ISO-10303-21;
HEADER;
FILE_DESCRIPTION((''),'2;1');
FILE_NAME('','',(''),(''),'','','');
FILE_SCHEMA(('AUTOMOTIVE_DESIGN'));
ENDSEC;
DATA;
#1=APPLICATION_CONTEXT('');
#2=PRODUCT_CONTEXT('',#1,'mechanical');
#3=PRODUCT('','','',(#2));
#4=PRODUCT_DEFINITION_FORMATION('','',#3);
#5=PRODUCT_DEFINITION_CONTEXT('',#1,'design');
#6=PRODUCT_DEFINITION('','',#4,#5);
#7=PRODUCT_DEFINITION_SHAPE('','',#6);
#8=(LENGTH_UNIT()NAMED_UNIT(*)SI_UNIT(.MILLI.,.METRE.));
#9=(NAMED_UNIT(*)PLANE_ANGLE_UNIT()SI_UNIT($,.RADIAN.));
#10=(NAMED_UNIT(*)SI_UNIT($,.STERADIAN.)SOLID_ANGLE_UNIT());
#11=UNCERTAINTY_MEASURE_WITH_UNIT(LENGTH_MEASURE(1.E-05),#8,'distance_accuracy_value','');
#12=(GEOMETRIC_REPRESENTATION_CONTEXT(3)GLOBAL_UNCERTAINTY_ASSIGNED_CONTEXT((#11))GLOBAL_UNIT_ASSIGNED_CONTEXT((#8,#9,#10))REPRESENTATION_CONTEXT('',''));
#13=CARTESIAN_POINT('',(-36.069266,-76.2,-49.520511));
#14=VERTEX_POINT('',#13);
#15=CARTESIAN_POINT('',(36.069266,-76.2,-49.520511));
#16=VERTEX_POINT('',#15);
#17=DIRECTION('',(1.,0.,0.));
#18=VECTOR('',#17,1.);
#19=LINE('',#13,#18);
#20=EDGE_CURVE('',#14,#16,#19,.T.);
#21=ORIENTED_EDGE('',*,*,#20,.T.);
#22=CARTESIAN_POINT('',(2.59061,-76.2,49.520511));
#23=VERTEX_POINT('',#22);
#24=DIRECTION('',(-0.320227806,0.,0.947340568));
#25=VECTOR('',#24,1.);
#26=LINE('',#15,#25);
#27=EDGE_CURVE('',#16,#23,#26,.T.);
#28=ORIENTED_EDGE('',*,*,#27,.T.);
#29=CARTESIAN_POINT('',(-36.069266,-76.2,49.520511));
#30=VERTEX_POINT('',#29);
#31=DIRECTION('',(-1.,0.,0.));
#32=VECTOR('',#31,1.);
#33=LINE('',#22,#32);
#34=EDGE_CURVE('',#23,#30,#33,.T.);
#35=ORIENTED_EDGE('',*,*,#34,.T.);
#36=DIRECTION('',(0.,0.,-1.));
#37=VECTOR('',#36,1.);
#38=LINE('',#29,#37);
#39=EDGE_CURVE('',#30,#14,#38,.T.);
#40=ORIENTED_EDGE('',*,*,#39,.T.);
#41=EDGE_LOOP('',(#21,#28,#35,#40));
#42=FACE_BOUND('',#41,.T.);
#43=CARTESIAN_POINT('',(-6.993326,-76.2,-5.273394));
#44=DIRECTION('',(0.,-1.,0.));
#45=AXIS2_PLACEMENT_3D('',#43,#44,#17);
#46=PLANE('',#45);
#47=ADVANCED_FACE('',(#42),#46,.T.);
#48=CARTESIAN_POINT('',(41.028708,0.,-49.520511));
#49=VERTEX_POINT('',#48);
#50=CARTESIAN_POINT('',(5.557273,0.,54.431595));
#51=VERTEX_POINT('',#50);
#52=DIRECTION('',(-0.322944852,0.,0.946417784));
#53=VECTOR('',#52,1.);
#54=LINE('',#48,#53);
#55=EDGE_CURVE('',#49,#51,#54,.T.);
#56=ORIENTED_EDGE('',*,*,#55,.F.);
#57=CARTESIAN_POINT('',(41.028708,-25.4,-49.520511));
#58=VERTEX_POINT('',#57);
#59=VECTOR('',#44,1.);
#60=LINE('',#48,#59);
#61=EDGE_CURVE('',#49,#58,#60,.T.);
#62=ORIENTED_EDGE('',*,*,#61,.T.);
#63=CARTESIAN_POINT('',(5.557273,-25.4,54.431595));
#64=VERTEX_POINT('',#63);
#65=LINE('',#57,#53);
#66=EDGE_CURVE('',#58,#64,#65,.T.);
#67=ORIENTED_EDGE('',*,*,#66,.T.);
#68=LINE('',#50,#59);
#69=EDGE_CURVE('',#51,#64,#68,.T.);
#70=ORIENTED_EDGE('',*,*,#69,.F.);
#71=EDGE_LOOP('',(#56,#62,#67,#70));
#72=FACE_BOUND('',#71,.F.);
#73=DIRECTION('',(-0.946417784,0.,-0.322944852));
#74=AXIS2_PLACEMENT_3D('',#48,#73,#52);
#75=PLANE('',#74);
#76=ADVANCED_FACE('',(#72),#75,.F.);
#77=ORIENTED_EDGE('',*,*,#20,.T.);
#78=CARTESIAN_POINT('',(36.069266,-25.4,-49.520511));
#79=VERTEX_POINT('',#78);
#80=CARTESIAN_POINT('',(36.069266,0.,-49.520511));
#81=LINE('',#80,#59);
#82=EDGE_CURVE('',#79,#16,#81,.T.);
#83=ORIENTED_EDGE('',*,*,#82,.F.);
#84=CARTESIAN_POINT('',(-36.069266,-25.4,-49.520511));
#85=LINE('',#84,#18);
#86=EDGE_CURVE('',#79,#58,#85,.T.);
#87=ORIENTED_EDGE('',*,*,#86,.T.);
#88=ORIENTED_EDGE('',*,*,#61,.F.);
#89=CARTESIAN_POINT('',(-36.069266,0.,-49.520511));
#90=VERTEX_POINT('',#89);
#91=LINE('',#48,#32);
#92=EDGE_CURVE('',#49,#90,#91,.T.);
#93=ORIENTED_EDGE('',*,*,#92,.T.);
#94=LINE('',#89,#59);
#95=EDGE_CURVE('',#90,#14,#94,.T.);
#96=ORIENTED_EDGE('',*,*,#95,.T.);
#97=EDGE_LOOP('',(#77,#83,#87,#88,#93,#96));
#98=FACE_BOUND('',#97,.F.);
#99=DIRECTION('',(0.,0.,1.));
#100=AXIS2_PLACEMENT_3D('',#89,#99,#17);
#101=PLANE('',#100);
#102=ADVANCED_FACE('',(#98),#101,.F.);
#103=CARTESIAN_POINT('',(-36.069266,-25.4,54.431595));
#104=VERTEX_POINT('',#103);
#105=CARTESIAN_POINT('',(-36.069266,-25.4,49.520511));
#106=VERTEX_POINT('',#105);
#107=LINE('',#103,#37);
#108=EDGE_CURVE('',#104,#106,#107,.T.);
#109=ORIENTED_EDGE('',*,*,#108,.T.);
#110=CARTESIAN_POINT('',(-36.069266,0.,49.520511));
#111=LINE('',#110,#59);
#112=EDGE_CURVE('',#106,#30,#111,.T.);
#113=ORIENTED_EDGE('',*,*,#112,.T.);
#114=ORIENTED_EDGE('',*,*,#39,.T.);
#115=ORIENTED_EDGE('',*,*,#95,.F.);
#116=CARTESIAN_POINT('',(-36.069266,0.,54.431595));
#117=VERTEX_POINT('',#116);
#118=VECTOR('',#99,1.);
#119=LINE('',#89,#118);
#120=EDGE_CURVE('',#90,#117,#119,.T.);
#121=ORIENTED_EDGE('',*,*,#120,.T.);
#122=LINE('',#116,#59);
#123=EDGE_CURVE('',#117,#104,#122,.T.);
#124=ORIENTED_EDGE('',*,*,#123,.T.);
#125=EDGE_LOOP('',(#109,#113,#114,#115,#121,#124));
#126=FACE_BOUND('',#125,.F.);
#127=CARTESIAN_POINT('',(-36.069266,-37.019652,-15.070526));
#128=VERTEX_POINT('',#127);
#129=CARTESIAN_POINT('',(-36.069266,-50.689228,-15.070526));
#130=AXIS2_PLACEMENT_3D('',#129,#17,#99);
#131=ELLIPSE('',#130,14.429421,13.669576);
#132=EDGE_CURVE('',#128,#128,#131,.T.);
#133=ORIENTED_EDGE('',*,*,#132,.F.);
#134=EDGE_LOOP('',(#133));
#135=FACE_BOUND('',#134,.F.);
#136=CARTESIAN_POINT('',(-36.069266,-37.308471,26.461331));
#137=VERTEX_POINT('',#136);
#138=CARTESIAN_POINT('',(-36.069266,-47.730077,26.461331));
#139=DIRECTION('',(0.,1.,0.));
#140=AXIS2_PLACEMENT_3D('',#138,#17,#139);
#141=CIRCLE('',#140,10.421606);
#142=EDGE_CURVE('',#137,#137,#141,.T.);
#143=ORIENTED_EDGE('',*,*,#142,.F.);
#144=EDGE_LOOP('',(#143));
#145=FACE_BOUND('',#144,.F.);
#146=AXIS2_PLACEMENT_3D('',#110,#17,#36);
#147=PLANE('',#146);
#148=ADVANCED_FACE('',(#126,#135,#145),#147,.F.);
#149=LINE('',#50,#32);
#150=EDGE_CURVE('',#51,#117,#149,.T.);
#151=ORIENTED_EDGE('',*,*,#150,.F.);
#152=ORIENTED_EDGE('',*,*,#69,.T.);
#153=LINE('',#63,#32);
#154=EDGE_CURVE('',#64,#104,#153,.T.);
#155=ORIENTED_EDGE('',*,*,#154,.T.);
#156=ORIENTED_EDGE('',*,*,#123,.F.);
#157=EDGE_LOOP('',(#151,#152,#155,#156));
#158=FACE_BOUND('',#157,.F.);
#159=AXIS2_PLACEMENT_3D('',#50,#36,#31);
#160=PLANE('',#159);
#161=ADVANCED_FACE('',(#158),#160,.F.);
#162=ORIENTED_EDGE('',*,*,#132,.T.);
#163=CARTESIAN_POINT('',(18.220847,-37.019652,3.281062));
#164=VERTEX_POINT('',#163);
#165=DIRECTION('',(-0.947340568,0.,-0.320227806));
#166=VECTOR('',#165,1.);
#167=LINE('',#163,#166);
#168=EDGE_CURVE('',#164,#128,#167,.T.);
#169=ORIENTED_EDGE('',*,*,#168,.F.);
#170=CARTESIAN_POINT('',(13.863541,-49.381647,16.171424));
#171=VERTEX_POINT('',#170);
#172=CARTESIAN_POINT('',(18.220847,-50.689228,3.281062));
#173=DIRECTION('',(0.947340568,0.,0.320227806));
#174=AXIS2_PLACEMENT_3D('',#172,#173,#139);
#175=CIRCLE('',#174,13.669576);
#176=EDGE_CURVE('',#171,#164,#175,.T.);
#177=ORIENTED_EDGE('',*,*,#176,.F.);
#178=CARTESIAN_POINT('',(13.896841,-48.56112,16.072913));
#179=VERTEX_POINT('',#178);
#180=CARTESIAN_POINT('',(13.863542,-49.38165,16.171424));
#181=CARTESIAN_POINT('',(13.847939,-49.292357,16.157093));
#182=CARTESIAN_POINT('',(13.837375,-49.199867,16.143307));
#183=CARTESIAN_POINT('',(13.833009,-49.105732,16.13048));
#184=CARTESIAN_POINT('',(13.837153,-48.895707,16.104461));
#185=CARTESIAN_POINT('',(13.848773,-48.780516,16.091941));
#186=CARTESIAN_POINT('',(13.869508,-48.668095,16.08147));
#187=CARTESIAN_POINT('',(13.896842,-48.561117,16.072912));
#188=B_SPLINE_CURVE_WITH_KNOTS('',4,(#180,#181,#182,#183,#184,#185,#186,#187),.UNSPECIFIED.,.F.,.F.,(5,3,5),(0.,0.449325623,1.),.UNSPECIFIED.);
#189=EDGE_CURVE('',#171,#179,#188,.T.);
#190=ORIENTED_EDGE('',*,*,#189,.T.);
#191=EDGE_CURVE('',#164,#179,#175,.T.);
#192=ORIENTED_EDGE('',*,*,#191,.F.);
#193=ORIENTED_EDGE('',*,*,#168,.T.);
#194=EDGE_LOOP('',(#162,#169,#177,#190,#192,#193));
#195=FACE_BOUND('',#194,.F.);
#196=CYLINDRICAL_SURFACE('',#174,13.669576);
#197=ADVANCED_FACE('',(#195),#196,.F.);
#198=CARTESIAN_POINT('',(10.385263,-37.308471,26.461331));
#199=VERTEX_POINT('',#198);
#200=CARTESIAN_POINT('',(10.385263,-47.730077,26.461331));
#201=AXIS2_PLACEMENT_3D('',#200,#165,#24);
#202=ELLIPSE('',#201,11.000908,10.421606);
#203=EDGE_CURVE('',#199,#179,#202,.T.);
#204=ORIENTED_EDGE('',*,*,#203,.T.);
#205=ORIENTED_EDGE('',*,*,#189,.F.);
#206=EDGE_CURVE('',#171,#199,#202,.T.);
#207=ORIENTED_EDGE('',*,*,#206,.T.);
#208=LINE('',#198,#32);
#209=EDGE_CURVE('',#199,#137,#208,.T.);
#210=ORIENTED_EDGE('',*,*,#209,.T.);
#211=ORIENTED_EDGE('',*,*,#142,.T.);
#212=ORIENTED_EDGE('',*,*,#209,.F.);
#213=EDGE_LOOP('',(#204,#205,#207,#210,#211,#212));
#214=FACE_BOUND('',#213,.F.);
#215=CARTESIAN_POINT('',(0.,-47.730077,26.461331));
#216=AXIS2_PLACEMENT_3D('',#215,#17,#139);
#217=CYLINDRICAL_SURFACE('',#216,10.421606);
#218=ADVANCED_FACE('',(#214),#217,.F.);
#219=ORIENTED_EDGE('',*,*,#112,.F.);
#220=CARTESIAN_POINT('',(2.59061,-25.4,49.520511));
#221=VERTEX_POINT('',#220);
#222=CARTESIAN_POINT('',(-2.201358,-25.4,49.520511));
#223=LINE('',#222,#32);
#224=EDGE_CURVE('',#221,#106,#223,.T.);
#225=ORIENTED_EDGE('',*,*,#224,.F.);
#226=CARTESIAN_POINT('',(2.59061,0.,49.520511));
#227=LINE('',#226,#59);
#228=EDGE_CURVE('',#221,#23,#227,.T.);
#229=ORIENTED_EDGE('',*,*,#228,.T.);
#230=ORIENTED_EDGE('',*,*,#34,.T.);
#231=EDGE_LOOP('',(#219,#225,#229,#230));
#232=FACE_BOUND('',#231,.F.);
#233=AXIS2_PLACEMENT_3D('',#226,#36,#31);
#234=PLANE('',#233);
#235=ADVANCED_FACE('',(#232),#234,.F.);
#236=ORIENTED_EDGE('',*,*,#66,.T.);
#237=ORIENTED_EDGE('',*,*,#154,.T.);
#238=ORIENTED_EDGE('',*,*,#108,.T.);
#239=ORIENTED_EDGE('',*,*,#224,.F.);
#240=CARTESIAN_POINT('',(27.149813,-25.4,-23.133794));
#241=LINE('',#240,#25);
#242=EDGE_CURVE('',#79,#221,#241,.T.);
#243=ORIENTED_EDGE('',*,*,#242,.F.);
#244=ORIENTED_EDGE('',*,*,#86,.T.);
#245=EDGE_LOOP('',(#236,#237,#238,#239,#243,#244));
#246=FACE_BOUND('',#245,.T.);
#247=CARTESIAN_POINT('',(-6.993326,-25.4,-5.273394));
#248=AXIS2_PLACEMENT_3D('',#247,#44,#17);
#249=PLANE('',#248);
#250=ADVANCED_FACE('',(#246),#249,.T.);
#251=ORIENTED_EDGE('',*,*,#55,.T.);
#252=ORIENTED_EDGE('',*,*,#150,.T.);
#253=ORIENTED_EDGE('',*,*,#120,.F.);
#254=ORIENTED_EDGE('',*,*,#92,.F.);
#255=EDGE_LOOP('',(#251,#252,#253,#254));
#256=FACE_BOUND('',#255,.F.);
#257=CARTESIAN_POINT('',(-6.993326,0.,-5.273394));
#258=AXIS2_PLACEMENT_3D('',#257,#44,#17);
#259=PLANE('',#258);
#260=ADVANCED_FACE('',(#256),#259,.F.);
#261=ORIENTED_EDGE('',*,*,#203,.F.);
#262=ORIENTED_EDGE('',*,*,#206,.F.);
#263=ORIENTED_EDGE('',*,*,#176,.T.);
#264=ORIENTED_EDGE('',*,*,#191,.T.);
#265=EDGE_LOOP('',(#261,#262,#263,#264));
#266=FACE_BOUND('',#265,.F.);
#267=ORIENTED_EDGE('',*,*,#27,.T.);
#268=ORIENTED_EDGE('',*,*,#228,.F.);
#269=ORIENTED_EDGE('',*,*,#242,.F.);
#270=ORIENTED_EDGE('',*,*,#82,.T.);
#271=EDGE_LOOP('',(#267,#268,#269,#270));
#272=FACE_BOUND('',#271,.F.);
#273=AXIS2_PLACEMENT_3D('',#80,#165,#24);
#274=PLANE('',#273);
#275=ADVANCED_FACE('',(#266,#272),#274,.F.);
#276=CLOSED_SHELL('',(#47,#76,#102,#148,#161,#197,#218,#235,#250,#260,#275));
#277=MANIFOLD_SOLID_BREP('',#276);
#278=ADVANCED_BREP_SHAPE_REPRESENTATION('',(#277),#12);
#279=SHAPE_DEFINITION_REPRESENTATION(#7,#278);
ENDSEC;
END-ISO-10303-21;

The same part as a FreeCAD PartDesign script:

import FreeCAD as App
import Part
import Sketcher

V = App.Vector


def add_polygon(sketch, points):
    """Adds a closed chain of lines whose ends are joined by coincident constraints."""
    first, n = sketch.GeometryCount, len(points)
    for a, b in zip(points, points[1:] + points[:1]):
        sketch.addGeometry(Part.LineSegment(App.Vector(*a, 0), App.Vector(*b, 0)), False)
    for i in range(n):
        sketch.addConstraint(Sketcher.Constraint("Coincident", first + i, 2, first + (i + 1) % n, 1))

doc = App.newDocument("Part")
params = doc.addObject("Spreadsheet::Sheet", "Params")
for row, (alias, value) in enumerate([
    ("pad1_length", "3 in"),
    ("pad2_length", "1 in"),
    ("pocket1_length", "4.75 in"),
], start=1):
    params.set(f"A{row}", alias)
    params.set(f"B{row}", "=" + value)
    params.setAlias(f"B{row}", alias)

body = doc.addObject("PartDesign::Body", "Body")

sketch1 = body.newObject("Sketcher::SketchObject", "Sketch")
sketch1.AttachmentSupport = (doc.getObject("XZ_Plane"), [""])
sketch1.MapMode = "FlatFace"
add_polygon(sketch1, [(36, -50), (3, 50), (-36, 50), (-36, -50)])
sketch1.addConstraint([
    Sketcher.Constraint("Horizontal", 1),
    Sketcher.Constraint("Vertical", 2),
    Sketcher.Constraint("Horizontal", 3),
    Sketcher.Constraint("Symmetric", 1, 2, 3, 2, -1, 1),
    Sketcher.Constraint("DistanceX", 1, 2, 1, 1, 38.659877),
    Sketcher.Constraint("DistanceX", 3, 1, 3, 2, 72.138533),
    Sketcher.Constraint("DistanceY", 2, 2, 2, 1, 99.041022),
])
pad1 = body.newObject("PartDesign::Pad", "Pad")
pad1.Profile = sketch1
pad1.setExpression("Length", "Params.pad1_length")

sketch2 = body.newObject("Sketcher::SketchObject", "Sketch001")
sketch2.AttachmentSupport = (doc.getObject("XZ_Plane"), [""])
sketch2.MapMode = "FlatFace"
add_polygon(sketch2, [(-36, -50), (41, -50), (6, 54), (-36, 54)])
sketch2.addConstraint([
    Sketcher.Constraint("Horizontal", 0),
    Sketcher.Constraint("Horizontal", 2),
    Sketcher.Constraint("Vertical", 3),
    Sketcher.Constraint("DistanceX", 2, 2, 2, 1, 41.626539),
    Sketcher.Constraint("Distance", 1, 109.837439),
    Sketcher.Constraint("DistanceX", 0, 1, 0, 2, 77.097975),
    Sketcher.Constraint("DistanceX", -1, 1, 0, 2, 41.028708),
    Sketcher.Constraint("DistanceY", 0, 2, -1, 1, 49.520511),
])
pad2 = body.newObject("PartDesign::Pad", "Pad001")
pad2.Profile = sketch2
pad2.setExpression("Length", "Params.pad2_length")

sketch3 = body.newObject("Sketcher::SketchObject", "Sketch002")
sketch3.Placement = App.Placement(V(17.347733, 0, 5.864023), App.Rotation(V(0, 1, 0), V(-0.320227806, 0, 0.947340568), V(0.947340568, 0, 0.320227806), "ZXY"))
sketch3.addGeometry(Part.Circle(V(-51, -3, 0), V(0, 0, 1), 14), False)
sketch3.addConstraint([
    Sketcher.Constraint("Diameter", 0, 27.339152),
    Sketcher.Constraint("DistanceY", 0, 3, -1, 1, 2.726539),
    Sketcher.Constraint("DistanceX", 0, 3, -1, 1, 50.689228),
])
pocket1 = body.newObject("PartDesign::Pocket", "Pocket")
pocket1.Profile = sketch3
pocket1.setExpression("Length", "Params.pocket1_length")

sketch4 = body.newObject("Sketcher::SketchObject", "Sketch003")
sketch4.AttachmentSupport = (doc.getObject("YZ_Plane"), [""])
sketch4.MapMode = "FlatFace"
sketch4.addGeometry(Part.Circle(V(-48, 26, 0), V(0, 0, 1), 10), False)
sketch4.addConstraint([
    Sketcher.Constraint("Diameter", 0, 20.843212),
    Sketcher.Constraint("DistanceY", -1, 1, 0, 3, 26.461331),
    Sketcher.Constraint("DistanceX", 0, 3, -1, 1, 47.730077),
])
pocket2 = body.newObject("PartDesign::Pocket", "Pocket001")
pocket2.Profile = sketch4
pocket2.Type = "ThroughAll"
pocket2.Midplane = True

doc.recompute()
